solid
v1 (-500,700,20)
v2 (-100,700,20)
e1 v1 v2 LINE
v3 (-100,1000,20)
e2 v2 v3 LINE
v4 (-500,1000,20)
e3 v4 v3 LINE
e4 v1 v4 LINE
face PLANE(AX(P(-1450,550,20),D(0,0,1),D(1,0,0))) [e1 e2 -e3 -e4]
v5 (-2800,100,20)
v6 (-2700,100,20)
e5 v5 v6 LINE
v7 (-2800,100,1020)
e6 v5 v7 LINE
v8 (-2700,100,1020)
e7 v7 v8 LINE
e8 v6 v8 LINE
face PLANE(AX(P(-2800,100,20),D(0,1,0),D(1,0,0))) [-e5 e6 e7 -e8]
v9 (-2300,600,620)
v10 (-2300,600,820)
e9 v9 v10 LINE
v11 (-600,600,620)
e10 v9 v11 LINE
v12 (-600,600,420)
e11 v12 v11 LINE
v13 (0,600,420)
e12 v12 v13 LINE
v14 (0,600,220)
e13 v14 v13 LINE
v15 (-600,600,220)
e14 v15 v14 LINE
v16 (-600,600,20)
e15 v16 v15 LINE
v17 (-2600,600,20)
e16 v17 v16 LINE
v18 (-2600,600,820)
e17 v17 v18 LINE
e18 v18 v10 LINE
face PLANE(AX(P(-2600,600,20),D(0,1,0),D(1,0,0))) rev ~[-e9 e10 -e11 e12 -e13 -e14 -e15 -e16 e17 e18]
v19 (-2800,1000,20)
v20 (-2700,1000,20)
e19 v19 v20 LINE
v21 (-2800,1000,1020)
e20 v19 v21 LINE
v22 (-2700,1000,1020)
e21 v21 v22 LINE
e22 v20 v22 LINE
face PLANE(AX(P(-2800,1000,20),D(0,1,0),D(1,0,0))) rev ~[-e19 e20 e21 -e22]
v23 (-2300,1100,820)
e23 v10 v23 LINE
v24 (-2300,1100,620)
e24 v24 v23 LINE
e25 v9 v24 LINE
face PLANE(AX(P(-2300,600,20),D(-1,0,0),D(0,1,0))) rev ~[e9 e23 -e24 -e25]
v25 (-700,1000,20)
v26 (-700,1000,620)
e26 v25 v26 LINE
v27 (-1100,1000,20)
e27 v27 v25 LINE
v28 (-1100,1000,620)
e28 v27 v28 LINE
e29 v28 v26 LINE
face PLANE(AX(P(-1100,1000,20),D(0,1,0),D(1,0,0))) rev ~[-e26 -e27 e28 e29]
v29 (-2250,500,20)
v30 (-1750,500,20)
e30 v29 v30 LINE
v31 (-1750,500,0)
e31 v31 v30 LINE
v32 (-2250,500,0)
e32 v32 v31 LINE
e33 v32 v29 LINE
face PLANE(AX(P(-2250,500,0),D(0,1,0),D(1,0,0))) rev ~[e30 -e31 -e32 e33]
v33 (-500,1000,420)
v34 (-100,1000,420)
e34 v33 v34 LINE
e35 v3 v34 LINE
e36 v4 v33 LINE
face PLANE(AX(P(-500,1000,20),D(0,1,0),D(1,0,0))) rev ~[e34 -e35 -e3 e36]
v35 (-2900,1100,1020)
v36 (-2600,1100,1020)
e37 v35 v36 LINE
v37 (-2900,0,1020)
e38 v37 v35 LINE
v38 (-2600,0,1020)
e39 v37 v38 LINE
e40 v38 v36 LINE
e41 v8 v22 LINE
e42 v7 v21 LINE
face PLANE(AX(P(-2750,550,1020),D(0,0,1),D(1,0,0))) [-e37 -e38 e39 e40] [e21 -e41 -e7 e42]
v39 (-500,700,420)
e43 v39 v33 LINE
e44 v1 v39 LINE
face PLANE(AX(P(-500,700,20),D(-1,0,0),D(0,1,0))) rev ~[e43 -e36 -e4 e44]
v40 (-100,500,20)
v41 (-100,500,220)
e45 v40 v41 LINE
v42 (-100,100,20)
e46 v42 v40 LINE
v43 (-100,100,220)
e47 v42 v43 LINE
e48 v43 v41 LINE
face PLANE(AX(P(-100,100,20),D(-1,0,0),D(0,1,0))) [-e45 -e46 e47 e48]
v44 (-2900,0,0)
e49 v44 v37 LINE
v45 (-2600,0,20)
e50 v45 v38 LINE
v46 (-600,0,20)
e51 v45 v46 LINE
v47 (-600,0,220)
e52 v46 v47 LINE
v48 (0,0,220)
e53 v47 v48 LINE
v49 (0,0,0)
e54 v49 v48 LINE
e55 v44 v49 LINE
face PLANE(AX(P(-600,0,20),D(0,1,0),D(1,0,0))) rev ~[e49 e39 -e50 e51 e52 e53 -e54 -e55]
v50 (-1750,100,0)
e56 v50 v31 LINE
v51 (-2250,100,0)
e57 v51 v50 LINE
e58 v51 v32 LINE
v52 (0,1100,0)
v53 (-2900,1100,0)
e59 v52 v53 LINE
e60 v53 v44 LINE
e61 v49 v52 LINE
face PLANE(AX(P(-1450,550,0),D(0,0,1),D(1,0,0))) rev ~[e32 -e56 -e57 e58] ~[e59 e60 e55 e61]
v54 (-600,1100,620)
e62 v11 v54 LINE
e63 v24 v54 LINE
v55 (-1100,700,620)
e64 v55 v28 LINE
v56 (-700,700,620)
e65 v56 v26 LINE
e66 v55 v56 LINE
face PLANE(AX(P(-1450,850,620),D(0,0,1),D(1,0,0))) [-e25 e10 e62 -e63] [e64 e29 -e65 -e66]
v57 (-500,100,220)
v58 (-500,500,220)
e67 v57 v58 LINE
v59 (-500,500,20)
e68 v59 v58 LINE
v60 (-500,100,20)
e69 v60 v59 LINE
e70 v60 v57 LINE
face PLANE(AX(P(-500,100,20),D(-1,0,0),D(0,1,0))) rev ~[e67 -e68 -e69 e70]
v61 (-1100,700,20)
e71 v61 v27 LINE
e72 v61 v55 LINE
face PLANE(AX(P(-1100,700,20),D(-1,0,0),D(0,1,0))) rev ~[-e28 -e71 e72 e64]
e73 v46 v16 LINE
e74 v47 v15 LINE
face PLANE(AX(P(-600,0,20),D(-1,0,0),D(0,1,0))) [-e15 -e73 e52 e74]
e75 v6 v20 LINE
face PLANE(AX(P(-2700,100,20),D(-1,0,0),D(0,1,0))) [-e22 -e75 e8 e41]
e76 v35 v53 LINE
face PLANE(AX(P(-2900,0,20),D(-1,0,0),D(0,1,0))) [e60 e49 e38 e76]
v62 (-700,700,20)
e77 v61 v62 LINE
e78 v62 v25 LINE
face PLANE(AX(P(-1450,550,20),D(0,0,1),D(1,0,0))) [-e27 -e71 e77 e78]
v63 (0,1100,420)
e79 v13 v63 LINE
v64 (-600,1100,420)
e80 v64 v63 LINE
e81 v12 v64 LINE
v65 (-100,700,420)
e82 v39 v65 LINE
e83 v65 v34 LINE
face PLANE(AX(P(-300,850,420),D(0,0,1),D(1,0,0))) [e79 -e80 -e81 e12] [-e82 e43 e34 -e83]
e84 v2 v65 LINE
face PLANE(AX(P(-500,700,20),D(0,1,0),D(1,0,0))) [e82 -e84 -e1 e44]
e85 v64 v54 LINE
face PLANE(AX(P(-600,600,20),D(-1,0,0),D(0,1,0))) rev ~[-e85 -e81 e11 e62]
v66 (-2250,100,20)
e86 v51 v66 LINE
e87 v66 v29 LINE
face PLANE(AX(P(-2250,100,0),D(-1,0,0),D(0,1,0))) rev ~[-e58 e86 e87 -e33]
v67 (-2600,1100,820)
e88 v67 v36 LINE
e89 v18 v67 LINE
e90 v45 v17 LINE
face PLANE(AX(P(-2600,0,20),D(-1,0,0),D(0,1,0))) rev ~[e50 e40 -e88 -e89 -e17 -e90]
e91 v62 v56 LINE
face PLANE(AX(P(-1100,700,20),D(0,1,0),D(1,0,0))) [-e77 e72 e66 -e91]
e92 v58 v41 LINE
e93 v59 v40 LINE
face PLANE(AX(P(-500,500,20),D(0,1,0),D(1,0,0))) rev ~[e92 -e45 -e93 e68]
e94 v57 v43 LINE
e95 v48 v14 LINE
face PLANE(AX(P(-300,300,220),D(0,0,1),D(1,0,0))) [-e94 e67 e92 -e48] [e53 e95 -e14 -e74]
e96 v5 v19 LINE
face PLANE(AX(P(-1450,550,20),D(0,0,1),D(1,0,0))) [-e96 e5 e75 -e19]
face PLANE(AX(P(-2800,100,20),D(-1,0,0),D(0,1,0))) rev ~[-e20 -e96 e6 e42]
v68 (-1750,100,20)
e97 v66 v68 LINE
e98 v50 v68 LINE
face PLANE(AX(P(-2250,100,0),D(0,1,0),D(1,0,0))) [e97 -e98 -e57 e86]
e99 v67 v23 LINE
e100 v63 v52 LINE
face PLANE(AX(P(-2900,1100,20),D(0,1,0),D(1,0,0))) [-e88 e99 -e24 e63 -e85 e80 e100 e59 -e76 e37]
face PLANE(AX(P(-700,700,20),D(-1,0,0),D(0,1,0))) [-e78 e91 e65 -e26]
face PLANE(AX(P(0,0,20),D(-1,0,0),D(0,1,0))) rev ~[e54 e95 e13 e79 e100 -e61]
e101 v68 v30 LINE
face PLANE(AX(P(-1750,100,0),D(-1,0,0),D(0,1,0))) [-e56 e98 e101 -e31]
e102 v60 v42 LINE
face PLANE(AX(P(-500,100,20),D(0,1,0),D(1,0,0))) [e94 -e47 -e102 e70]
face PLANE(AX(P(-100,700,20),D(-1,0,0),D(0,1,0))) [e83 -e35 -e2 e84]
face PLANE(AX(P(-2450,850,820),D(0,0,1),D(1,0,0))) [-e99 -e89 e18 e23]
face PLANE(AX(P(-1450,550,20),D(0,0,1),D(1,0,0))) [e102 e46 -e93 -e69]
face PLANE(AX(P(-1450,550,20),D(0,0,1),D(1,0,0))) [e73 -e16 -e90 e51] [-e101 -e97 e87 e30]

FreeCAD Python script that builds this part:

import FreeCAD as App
import Part
import Sketcher

V = App.Vector
Q = App.Units.Quantity


def add_polygon(sketch, points):
    """Adds a closed chain of lines whose ends are joined by coincident constraints."""
    first, n = sketch.GeometryCount, len(points)
    for a, b in zip(points, points[1:] + points[:1]):
        sketch.addGeometry(Part.LineSegment(App.Vector(*a, 0), App.Vector(*b, 0)), False)
    for i in range(n):
        sketch.addConstraint(Sketcher.Constraint("Coincident", first + i, 2, first + (i + 1) % n, 1))

doc = App.newDocument("Part")
body = doc.addObject("PartDesign::Body", "Body")

# Sketch on XY plane
sketch1 = body.newObject("Sketcher::SketchObject", "Sketch")
sketch1.AttachmentSupport = (doc.getObject("XY_Plane"), [""])
sketch1.MapMode = "FlatFace"
add_polygon(sketch1, [(0, 0), (0, 1100), (-2900, 1100), (-2900, 0)])  # lines 0-3
add_polygon(sketch1, [(-1750, 100), (-2250, 100), (-2250, 500), (-1750, 500)])  # lines 4-7
sketch1.addConstraint(Sketcher.Constraint("Vertical", 0))
sketch1.addConstraint(Sketcher.Constraint("Horizontal", 1))
sketch1.addConstraint(Sketcher.Constraint("Vertical", 2))
sketch1.addConstraint(Sketcher.Constraint("Horizontal", 3))
sketch1.addConstraint(Sketcher.Constraint("Horizontal", 4))
sketch1.addConstraint(Sketcher.Constraint("Vertical", 5))
sketch1.addConstraint(Sketcher.Constraint("Horizontal", 6))
sketch1.addConstraint(Sketcher.Constraint("Vertical", 7))
sketch1.addConstraint(Sketcher.Constraint("Coincident", 3, 2, -1, 1))
sketch1.addConstraint(Sketcher.Constraint("DistanceX", 1, 2, 1, 1, Q("2900 mm")))
sketch1.addConstraint(Sketcher.Constraint("DistanceX", 4, 2, 4, 1, Q("500 mm")))
sketch1.addConstraint(Sketcher.Constraint("DistanceY", 0, 1, 0, 2, Q("1100 mm")))
sketch1.addConstraint(Sketcher.Constraint("DistanceY", 5, 1, 5, 2, Q("400 mm")))
sketch1.addConstraint(Sketcher.Constraint("DistanceX", 4, 2, -1, 1, Q("2250 mm")))
sketch1.addConstraint(Sketcher.Constraint("DistanceY", -1, 1, 4, 2, Q("100 mm")))
pad1 = body.newObject("PartDesign::Pad", "Pad")
pad1.Profile = sketch1
pad1.Length = 20

# Sketch on XY plane
sketch2 = body.newObject("Sketcher::SketchObject", "Sketch001")
sketch2.AttachmentSupport = (doc.getObject("XY_Plane"), [""])
sketch2.MapMode = "FlatFace"
sketch2.AttachmentOffset = App.Placement(V(0, 0, 20), App.Rotation())
add_polygon(sketch2, [(-600, 1100), (-600, 600), (0, 600), (0, 1100)])  # lines 0-3
add_polygon(sketch2, [(-100, 700), (-500, 700), (-500, 1000), (-100, 1000)])  # lines 4-7
sketch2.addConstraint(Sketcher.Constraint("Vertical", 0))
sketch2.addConstraint(Sketcher.Constraint("Horizontal", 1))
sketch2.addConstraint(Sketcher.Constraint("Vertical", 2))
sketch2.addConstraint(Sketcher.Constraint("Horizontal", 3))
sketch2.addConstraint(Sketcher.Constraint("Horizontal", 4))
sketch2.addConstraint(Sketcher.Constraint("Vertical", 5))
sketch2.addConstraint(Sketcher.Constraint("Horizontal", 6))
sketch2.addConstraint(Sketcher.Constraint("Vertical", 7))
sketch2.addConstraint(Sketcher.Constraint("PointOnObject", 1, 2, -2))
sketch2.addConstraint(Sketcher.Constraint("DistanceX", 1, 1, 1, 2, Q("600 mm")))
sketch2.addConstraint(Sketcher.Constraint("DistanceX", 4, 2, 4, 1, Q("400 mm")))
sketch2.addConstraint(Sketcher.Constraint("DistanceY", 0, 2, 0, 1, Q("500 mm")))
sketch2.addConstraint(Sketcher.Constraint("DistanceY", 5, 1, 5, 2, Q("300 mm")))
sketch2.addConstraint(Sketcher.Constraint("DistanceY", -1, 1, 0, 2, Q("600 mm")))
sketch2.addConstraint(Sketcher.Constraint("DistanceX", 4, 2, -1, 1, Q("500 mm")))
sketch2.addConstraint(Sketcher.Constraint("DistanceY", -1, 1, 4, 2, Q("700 mm")))
pad2 = body.newObject("PartDesign::Pad", "Pad001")
pad2.Profile = sketch2
pad2.Length = 400

# Sketch on XY plane
sketch3 = body.newObject("Sketcher::SketchObject", "Sketch002")
sketch3.AttachmentSupport = (doc.getObject("XY_Plane"), [""])
sketch3.MapMode = "FlatFace"
sketch3.AttachmentOffset = App.Placement(V(0, 0, 20), App.Rotation())
add_polygon(sketch3, [(-2300, 1100), (-2300, 600), (-600, 600), (-600, 1100)])  # lines 0-3
add_polygon(sketch3, [(-700, 700), (-1100, 700), (-1100, 1000), (-700, 1000)])  # lines 4-7
sketch3.addConstraint(Sketcher.Constraint("Vertical", 0))
sketch3.addConstraint(Sketcher.Constraint("Horizontal", 1))
sketch3.addConstraint(Sketcher.Constraint("Vertical", 2))
sketch3.addConstraint(Sketcher.Constraint("Horizontal", 3))
sketch3.addConstraint(Sketcher.Constraint("Horizontal", 4))
sketch3.addConstraint(Sketcher.Constraint("Vertical", 5))
sketch3.addConstraint(Sketcher.Constraint("Horizontal", 6))
sketch3.addConstraint(Sketcher.Constraint("Vertical", 7))
sketch3.addConstraint(Sketcher.Constraint("DistanceX", 1, 1, 1, 2, Q("1700 mm")))
sketch3.addConstraint(Sketcher.Constraint("DistanceX", 4, 2, 4, 1, Q("400 mm")))
sketch3.addConstraint(Sketcher.Constraint("DistanceY", 0, 2, 0, 1, Q("500 mm")))
sketch3.addConstraint(Sketcher.Constraint("DistanceY", 5, 1, 5, 2, Q("300 mm")))
sketch3.addConstraint(Sketcher.Constraint("DistanceX", 0, 2, -1, 1, Q("2300 mm")))
sketch3.addConstraint(Sketcher.Constraint("DistanceY", -1, 1, 0, 2, Q("600 mm")))
sketch3.addConstraint(Sketcher.Constraint("DistanceX", 4, 2, -1, 1, Q("1100 mm")))
sketch3.addConstraint(Sketcher.Constraint("DistanceY", -1, 1, 4, 2, Q("700 mm")))
pad3 = body.newObject("PartDesign::Pad", "Pad002")
pad3.Profile = sketch3
pad3.Length = 600

# Sketch on XY plane
sketch4 = body.newObject("Sketcher::SketchObject", "Sketch003")
sketch4.AttachmentSupport = (doc.getObject("XY_Plane"), [""])
sketch4.MapMode = "FlatFace"
sketch4.AttachmentOffset = App.Placement(V(0, 0, 20), App.Rotation())
add_polygon(sketch4, [(-2600, 1100), (-2600, 600), (-2300, 600), (-2300, 1100)])  # lines 0-3
sketch4.addConstraint(Sketcher.Constraint("Vertical", 0))
sketch4.addConstraint(Sketcher.Constraint("Horizontal", 1))
sketch4.addConstraint(Sketcher.Constraint("Vertical", 2))
sketch4.addConstraint(Sketcher.Constraint("Horizontal", 3))
sketch4.addConstraint(Sketcher.Constraint("DistanceX", 1, 1, 1, 2, Q("300 mm")))
sketch4.addConstraint(Sketcher.Constraint("DistanceY", 0, 2, 0, 1, Q("500 mm")))
sketch4.addConstraint(Sketcher.Constraint("DistanceX", 0, 2, -1, 1, Q("2600 mm")))
sketch4.addConstraint(Sketcher.Constraint("DistanceY", -1, 1, 0, 2, Q("600 mm")))
pad4 = body.newObject("PartDesign::Pad", "Pad003")
pad4.Profile = sketch4
pad4.Length = 800

# Sketch on XY plane
sketch5 = body.newObject("Sketcher::SketchObject", "Sketch004")
sketch5.AttachmentSupport = (doc.getObject("XY_Plane"), [""])
sketch5.MapMode = "FlatFace"
sketch5.AttachmentOffset = App.Placement(V(0, 0, 20), App.Rotation())
add_polygon(sketch5, [(-2900, 1100), (-2900, 0), (-2600, 0), (-2600, 1100)])  # lines 0-3
add_polygon(sketch5, [(-2700, 100), (-2800, 100), (-2800, 1000), (-2700, 1000)])  # lines 4-7
sketch5.addConstraint(Sketcher.Constraint("Vertical", 0))
sketch5.addConstraint(Sketcher.Constraint("Horizontal", 1))
sketch5.addConstraint(Sketcher.Constraint("Vertical", 2))
sketch5.addConstraint(Sketcher.Constraint("Horizontal", 3))
sketch5.addConstraint(Sketcher.Constraint("Horizontal", 4))
sketch5.addConstraint(Sketcher.Constraint("Vertical", 5))
sketch5.addConstraint(Sketcher.Constraint("Horizontal", 6))
sketch5.addConstraint(Sketcher.Constraint("Vertical", 7))
sketch5.addConstraint(Sketcher.Constraint("PointOnObject", 0, 2, -1))
sketch5.addConstraint(Sketcher.Constraint("DistanceX", 1, 1, 1, 2, Q("300 mm")))
sketch5.addConstraint(Sketcher.Constraint("DistanceX", 4, 2, 4, 1, Q("100 mm")))
sketch5.addConstraint(Sketcher.Constraint("DistanceY", 0, 2, 0, 1, Q("1100 mm")))
sketch5.addConstraint(Sketcher.Constraint("DistanceY", 5, 1, 5, 2, Q("900 mm")))
sketch5.addConstraint(Sketcher.Constraint("DistanceX", 0, 2, -1, 1, Q("2900 mm")))
sketch5.addConstraint(Sketcher.Constraint("DistanceX", 4, 2, -1, 1, Q("2800 mm")))
sketch5.addConstraint(Sketcher.Constraint("DistanceY", -1, 1, 4, 2, Q("100 mm")))
pad5 = body.newObject("PartDesign::Pad", "Pad004")
pad5.Profile = sketch5
pad5.Length = 1000

# Sketch on XY plane
sketch6 = body.newObject("Sketcher::SketchObject", "Sketch005")
sketch6.AttachmentSupport = (doc.getObject("XY_Plane"), [""])
sketch6.MapMode = "FlatFace"
sketch6.AttachmentOffset = App.Placement(V(0, 0, 20), App.Rotation())
add_polygon(sketch6, [(-600, 600), (-600, 0), (0, 0), (0, 600)])  # lines 0-3
add_polygon(sketch6, [(-100, 100), (-500, 100), (-500, 500), (-100, 500)])  # lines 4-7
sketch6.addConstraint(Sketcher.Constraint("Vertical", 0))
sketch6.addConstraint(Sketcher.Constraint("Horizontal", 1))
sketch6.addConstraint(Sketcher.Constraint("Vertical", 2))
sketch6.addConstraint(Sketcher.Constraint("Horizontal", 3))
sketch6.addConstraint(Sketcher.Constraint("Horizontal", 4))
sketch6.addConstraint(Sketcher.Constraint("Vertical", 5))
sketch6.addConstraint(Sketcher.Constraint("Horizontal", 6))
sketch6.addConstraint(Sketcher.Constraint("Vertical", 7))
sketch6.addConstraint(Sketcher.Constraint("Coincident", 1, 2, -1, 1))
sketch6.addConstraint(Sketcher.Constraint("Equal", 3, 0))
sketch6.addConstraint(Sketcher.Constraint("Equal", 6, 5))
sketch6.addConstraint(Sketcher.Constraint("DistanceX", 1, 1, 1, 2, Q("600 mm")))
sketch6.addConstraint(Sketcher.Constraint("DistanceX", 4, 2, 4, 1, Q("400 mm")))
sketch6.addConstraint(Sketcher.Constraint("DistanceX", 4, 2, -1, 1, Q("500 mm")))
sketch6.addConstraint(Sketcher.Constraint("DistanceY", -1, 1, 4, 2, Q("100 mm")))
pad6 = body.newObject("PartDesign::Pad", "Pad005")
pad6.Profile = sketch6
pad6.Length = 200

doc.recompute()
